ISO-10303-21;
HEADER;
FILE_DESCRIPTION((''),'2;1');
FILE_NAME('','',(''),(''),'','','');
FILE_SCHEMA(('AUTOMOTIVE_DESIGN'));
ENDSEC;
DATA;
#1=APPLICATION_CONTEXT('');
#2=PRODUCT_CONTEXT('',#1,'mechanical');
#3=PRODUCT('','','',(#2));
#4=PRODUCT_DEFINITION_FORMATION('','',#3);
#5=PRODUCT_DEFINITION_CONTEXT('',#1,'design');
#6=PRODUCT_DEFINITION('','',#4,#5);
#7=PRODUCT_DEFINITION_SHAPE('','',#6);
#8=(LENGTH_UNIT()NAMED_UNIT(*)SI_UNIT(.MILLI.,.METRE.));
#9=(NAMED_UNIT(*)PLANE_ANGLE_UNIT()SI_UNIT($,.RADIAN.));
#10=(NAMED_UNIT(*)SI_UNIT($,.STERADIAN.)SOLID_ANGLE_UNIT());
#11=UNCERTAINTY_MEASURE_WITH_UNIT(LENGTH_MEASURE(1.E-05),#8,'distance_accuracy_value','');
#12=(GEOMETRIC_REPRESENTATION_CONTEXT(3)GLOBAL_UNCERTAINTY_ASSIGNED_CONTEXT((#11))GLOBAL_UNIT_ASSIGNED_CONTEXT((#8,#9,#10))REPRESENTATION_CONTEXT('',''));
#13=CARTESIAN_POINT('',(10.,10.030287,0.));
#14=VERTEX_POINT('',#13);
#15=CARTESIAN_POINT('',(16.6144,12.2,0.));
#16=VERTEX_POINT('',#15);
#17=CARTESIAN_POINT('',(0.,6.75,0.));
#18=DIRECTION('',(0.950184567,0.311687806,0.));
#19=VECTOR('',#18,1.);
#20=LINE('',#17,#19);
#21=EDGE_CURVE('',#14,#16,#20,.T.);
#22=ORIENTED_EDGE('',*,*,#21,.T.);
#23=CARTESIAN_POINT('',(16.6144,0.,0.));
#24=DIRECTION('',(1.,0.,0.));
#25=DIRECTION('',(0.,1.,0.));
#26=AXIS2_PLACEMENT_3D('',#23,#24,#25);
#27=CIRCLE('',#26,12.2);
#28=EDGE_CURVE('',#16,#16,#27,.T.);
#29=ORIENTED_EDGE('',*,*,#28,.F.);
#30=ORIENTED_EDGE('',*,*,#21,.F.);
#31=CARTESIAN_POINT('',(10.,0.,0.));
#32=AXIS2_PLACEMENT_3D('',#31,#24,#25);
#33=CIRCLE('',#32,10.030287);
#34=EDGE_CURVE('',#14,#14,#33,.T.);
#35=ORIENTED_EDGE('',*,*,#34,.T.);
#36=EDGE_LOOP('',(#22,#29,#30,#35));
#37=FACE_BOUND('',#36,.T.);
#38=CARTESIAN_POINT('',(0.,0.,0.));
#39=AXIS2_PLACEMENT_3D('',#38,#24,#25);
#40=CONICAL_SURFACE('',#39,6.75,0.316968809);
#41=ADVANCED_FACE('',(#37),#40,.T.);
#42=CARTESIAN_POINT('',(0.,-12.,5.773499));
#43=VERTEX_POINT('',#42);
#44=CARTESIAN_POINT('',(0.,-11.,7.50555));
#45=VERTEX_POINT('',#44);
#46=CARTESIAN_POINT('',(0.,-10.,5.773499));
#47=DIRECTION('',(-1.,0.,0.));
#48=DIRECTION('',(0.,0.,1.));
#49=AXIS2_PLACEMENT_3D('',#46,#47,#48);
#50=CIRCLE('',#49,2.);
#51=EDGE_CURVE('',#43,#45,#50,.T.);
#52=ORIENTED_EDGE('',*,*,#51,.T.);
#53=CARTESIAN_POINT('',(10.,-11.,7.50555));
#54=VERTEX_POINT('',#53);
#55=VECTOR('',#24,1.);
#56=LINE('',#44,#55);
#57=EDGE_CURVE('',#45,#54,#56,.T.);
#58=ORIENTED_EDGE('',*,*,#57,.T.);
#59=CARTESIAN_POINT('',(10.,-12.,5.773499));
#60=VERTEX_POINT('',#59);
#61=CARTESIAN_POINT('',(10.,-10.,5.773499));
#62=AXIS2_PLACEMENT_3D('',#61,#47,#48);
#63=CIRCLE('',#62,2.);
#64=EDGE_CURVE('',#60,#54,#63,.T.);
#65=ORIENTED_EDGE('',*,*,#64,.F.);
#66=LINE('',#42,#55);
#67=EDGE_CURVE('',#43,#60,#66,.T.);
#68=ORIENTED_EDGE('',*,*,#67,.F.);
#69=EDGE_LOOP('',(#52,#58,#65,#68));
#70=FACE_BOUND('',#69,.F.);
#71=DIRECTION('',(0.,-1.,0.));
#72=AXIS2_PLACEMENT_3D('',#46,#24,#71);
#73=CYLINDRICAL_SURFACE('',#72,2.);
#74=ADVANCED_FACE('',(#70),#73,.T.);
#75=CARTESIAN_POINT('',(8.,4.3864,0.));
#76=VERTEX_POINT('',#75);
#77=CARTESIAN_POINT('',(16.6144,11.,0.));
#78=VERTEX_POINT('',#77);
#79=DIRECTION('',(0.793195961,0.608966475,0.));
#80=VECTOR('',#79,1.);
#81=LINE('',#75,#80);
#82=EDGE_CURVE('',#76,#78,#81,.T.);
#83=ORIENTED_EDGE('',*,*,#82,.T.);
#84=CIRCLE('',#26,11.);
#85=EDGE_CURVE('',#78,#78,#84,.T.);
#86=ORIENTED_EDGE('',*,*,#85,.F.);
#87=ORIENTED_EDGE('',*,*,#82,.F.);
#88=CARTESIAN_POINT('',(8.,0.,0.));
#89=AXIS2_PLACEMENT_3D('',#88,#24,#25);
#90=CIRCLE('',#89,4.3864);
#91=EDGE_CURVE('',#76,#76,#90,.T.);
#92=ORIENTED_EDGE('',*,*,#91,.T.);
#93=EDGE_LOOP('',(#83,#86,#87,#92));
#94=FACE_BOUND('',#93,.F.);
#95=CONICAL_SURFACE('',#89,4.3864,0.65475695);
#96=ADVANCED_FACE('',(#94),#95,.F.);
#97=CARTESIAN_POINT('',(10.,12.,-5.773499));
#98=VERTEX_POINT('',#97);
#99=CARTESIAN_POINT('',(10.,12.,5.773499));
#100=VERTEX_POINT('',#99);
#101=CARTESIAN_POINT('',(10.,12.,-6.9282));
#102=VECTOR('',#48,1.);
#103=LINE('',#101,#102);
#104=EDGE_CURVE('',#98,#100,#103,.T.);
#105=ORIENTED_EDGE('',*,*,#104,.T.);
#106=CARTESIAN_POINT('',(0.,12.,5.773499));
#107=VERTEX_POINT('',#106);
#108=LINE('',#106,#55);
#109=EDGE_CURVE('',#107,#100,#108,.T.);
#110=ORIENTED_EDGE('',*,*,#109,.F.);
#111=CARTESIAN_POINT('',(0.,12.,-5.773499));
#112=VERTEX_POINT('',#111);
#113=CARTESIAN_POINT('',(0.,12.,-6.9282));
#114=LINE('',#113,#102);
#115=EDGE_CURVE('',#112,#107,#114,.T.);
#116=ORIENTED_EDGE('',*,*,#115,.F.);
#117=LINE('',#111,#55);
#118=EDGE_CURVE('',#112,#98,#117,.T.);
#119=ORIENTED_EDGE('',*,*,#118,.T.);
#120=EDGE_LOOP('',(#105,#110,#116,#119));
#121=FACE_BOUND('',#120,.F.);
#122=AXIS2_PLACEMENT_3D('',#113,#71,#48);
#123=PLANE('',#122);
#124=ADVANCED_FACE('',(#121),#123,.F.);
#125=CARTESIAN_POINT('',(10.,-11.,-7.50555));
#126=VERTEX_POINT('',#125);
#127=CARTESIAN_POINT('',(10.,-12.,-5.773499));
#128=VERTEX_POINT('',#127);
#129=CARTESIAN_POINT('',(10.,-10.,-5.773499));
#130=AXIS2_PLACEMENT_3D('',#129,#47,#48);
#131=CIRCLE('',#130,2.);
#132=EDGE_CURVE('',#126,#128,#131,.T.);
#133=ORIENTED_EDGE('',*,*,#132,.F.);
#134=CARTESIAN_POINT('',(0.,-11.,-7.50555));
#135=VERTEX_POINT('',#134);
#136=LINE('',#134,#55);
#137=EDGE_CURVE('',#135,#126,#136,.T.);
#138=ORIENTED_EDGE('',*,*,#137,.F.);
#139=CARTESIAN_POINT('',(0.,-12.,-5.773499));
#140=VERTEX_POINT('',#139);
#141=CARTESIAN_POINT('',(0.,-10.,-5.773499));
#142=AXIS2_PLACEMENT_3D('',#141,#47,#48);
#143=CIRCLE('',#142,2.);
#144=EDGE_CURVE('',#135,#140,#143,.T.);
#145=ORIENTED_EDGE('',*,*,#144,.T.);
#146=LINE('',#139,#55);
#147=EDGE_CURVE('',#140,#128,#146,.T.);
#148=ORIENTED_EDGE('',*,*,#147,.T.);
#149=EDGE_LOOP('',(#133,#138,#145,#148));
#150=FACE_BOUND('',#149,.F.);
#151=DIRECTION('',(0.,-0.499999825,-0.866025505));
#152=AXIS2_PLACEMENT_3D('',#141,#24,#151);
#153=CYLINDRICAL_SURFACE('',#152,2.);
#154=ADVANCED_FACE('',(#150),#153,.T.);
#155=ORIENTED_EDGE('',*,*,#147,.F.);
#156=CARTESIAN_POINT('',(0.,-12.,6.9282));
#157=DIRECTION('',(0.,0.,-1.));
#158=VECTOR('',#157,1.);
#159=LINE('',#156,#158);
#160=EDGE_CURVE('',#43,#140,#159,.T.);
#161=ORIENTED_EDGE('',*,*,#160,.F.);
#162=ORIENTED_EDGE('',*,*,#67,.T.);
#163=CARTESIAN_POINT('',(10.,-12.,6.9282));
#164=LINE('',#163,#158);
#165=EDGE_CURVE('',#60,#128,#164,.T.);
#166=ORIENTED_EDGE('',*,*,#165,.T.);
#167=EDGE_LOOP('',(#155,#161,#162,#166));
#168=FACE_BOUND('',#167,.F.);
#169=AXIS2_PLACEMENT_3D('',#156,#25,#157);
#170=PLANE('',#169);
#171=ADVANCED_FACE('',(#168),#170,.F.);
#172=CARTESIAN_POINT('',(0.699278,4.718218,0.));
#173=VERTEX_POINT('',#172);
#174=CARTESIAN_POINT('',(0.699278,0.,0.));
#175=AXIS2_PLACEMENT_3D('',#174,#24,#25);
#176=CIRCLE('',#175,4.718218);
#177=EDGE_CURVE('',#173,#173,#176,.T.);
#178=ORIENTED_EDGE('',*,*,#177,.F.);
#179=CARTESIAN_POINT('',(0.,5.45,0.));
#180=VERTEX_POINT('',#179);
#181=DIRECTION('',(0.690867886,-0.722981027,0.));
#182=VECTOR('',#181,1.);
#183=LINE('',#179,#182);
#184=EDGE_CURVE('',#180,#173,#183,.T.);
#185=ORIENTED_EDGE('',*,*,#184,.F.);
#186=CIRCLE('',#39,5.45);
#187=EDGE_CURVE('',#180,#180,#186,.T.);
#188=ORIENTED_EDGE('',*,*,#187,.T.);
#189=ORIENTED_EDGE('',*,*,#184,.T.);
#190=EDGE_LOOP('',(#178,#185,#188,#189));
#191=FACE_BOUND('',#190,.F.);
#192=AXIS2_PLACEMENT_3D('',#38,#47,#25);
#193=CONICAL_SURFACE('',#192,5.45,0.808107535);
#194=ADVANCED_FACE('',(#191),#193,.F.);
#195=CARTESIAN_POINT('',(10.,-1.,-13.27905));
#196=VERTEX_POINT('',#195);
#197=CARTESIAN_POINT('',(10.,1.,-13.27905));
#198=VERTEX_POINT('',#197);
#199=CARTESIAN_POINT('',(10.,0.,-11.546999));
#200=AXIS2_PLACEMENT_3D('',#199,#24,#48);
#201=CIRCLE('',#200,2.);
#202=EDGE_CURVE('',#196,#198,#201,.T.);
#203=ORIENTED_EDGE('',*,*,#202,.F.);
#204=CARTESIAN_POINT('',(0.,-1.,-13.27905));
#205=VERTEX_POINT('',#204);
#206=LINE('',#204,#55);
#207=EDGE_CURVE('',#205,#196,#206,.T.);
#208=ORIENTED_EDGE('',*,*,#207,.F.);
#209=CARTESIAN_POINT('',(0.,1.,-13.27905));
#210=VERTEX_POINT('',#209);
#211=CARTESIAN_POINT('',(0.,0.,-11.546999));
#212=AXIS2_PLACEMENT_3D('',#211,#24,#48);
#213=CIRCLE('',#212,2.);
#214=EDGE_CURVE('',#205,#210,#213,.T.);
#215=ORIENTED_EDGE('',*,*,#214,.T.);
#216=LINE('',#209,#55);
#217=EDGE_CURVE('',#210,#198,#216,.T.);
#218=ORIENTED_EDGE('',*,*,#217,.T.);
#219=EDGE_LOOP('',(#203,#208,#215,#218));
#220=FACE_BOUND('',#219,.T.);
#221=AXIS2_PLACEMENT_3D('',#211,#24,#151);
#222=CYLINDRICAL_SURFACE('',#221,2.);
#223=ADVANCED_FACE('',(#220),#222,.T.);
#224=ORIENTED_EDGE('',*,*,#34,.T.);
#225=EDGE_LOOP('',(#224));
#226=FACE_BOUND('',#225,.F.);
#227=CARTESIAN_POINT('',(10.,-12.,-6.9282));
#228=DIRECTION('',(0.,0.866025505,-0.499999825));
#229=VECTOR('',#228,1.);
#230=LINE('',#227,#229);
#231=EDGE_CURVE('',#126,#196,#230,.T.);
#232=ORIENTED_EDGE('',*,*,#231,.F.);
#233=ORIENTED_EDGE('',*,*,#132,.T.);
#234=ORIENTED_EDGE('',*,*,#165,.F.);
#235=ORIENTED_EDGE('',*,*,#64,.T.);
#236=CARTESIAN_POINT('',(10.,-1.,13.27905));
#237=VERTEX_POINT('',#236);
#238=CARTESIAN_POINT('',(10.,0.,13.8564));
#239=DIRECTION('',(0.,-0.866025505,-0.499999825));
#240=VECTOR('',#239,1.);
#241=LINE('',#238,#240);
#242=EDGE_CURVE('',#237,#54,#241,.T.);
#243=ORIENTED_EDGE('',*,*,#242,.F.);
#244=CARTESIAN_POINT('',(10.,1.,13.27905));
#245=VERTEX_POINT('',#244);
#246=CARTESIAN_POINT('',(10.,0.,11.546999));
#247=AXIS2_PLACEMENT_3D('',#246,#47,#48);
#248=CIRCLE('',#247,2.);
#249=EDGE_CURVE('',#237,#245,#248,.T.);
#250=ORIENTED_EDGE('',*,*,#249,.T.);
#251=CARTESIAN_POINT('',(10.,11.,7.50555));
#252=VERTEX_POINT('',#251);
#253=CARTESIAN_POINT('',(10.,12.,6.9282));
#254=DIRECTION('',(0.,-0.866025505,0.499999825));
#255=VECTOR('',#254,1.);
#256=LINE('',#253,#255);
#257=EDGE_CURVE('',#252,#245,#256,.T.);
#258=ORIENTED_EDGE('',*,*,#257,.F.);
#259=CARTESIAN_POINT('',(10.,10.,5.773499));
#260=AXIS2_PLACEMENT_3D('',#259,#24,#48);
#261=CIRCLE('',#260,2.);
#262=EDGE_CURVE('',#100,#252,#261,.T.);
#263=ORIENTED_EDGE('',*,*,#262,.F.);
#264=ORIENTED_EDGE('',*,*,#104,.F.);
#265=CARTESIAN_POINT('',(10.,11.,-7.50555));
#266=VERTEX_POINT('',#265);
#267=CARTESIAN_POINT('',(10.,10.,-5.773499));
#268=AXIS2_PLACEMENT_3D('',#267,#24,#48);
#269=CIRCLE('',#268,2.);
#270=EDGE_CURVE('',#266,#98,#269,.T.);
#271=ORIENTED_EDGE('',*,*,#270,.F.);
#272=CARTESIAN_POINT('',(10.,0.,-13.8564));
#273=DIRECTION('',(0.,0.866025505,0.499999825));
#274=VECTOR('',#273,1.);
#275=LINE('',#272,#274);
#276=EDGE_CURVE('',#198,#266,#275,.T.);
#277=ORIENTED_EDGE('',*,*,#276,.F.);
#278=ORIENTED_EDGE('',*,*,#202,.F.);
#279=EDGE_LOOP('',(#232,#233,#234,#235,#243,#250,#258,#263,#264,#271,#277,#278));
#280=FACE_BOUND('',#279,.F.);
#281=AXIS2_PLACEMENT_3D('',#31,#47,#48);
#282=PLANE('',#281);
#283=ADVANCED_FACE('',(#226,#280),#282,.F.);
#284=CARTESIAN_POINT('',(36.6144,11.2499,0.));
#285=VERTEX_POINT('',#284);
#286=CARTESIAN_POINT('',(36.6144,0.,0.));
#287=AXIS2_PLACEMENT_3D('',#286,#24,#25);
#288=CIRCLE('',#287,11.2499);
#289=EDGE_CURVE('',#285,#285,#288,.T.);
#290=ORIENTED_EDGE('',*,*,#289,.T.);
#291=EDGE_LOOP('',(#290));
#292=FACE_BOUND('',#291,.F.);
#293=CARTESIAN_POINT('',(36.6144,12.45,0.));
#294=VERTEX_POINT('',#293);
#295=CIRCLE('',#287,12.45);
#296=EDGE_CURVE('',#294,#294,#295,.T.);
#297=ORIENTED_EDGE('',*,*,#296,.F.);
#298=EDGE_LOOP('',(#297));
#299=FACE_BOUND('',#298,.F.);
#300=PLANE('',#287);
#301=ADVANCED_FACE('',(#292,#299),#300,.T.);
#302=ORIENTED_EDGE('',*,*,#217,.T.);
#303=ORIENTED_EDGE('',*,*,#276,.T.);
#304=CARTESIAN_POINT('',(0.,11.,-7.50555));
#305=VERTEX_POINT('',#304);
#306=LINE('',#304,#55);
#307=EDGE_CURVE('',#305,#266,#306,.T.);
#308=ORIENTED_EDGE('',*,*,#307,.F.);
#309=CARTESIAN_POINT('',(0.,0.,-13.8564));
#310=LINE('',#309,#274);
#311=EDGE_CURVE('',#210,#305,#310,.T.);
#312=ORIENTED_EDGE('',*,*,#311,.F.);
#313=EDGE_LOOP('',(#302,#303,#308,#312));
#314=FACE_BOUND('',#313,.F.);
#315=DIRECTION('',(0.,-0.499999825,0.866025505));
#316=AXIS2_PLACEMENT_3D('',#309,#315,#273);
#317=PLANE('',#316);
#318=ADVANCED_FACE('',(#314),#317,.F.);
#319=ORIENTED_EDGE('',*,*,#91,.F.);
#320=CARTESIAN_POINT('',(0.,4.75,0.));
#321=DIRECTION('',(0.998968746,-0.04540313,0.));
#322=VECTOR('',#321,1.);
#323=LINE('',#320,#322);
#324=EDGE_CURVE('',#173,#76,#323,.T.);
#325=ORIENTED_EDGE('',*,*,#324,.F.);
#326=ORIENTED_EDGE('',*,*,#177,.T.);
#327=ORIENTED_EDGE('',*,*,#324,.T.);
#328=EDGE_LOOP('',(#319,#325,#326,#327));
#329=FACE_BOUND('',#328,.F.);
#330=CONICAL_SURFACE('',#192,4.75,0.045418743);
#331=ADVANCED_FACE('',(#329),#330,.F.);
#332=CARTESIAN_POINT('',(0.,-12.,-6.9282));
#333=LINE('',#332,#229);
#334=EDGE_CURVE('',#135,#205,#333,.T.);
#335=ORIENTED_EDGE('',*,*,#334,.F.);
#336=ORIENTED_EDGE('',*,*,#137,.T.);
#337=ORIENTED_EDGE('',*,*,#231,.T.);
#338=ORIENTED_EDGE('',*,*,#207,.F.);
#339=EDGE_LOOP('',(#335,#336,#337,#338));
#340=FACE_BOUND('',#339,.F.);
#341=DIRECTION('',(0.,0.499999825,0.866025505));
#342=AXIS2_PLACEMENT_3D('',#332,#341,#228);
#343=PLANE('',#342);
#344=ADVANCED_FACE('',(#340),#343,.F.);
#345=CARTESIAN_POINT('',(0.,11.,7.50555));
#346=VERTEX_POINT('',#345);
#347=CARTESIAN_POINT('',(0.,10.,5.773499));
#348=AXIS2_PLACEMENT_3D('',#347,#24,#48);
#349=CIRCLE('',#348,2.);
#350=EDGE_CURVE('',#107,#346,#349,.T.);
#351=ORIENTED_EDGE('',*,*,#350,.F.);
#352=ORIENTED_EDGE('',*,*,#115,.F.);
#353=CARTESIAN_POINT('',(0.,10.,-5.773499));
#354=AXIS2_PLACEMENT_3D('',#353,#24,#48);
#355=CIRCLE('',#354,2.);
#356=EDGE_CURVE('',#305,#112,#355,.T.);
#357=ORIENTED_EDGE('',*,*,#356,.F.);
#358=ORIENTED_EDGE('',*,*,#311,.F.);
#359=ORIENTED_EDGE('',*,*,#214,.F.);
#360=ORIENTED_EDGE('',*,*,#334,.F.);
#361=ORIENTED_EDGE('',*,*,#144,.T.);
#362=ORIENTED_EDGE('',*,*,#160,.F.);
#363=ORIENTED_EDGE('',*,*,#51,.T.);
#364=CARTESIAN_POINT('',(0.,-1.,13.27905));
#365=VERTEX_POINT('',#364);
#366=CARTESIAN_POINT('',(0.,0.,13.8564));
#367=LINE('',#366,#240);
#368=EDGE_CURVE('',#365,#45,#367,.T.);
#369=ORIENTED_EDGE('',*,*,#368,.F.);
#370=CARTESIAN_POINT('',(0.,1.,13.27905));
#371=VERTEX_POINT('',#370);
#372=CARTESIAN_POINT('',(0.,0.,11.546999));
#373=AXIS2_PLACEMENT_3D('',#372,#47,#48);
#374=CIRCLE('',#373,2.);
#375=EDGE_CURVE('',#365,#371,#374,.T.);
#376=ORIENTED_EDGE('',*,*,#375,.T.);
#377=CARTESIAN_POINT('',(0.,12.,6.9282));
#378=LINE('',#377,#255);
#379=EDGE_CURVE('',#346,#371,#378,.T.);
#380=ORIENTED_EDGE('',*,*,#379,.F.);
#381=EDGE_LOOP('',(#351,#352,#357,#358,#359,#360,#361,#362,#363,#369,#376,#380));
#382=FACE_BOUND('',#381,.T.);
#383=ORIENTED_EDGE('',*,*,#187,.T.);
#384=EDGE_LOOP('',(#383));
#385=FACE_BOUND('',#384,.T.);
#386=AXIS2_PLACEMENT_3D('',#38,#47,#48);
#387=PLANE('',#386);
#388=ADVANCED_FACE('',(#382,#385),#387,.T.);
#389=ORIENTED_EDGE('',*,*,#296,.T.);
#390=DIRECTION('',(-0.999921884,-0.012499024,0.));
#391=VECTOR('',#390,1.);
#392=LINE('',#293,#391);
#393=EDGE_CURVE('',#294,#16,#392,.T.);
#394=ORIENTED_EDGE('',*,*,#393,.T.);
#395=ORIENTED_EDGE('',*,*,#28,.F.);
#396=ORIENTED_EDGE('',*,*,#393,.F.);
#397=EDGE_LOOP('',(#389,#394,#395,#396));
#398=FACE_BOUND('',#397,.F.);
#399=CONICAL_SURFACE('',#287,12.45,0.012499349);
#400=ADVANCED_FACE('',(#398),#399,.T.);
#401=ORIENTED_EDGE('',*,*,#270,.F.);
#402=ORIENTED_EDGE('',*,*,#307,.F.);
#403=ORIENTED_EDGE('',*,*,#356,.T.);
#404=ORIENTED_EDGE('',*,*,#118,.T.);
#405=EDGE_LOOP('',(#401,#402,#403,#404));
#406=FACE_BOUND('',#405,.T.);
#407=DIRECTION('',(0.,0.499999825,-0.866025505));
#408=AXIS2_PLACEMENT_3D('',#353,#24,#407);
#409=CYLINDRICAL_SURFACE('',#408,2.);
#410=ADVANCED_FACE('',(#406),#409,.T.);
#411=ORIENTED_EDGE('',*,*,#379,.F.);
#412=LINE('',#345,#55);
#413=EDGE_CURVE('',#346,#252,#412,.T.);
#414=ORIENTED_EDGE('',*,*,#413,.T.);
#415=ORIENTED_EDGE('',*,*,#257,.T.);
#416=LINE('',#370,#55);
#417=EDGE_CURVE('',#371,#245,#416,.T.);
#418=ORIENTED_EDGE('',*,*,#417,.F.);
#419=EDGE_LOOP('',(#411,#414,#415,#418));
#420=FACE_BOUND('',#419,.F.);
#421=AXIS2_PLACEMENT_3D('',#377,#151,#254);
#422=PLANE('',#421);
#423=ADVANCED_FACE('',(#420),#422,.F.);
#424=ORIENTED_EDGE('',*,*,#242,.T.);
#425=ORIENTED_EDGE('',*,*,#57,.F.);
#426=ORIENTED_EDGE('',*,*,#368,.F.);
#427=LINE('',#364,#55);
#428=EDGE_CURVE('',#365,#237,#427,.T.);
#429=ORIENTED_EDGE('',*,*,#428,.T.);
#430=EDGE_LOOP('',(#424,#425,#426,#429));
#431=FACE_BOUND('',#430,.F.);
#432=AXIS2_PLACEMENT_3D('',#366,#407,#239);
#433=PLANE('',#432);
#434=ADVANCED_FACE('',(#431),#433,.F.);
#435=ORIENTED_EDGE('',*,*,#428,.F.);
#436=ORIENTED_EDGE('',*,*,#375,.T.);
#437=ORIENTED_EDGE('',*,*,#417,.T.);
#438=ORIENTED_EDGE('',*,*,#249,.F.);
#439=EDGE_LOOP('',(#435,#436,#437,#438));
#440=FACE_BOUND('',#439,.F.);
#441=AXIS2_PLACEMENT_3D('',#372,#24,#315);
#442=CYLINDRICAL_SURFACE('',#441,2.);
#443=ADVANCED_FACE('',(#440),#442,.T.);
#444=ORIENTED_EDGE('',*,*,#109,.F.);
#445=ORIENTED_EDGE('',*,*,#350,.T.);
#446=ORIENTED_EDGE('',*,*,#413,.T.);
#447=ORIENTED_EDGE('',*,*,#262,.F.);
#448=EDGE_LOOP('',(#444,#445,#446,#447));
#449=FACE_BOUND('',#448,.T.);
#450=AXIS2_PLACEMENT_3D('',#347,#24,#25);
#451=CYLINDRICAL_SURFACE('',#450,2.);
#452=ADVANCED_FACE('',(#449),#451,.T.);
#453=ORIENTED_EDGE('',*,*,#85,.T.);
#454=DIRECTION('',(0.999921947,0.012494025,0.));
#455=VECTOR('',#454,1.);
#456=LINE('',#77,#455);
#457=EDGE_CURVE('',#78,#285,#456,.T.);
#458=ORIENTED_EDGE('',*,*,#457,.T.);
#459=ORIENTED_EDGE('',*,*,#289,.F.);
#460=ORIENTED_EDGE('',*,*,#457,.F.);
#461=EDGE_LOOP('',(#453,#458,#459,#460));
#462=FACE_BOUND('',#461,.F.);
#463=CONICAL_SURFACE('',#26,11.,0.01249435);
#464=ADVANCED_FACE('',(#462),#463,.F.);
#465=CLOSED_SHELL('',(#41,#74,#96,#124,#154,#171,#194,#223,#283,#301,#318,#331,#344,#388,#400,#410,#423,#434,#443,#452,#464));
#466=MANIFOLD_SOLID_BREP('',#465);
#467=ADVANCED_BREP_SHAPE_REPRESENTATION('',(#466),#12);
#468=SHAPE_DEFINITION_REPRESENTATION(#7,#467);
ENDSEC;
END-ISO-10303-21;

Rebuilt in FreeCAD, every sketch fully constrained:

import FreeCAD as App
import Part
import Sketcher
from FreeCAD import Vector
Q = App.Units.Quantity


def edges_at(feature, points):
    """Names of the edges that pass closest to the given points."""
    edges = feature.Shape.Edges
    near = lambda p: min(range(len(edges)), key=lambda i: edges[i].distToShape(Part.Vertex(*p))[0])
    return sorted({f"Edge{near(p) + 1}" for p in points})


def add_polygon(sketch, points):
    """Adds a closed chain of lines whose ends are joined by coincident constraints."""
    first, n = sketch.GeometryCount, len(points)
    for a, b in zip(points, points[1:] + points[:1]):
        sketch.addGeometry(Part.LineSegment(App.Vector(*a, 0), App.Vector(*b, 0)), False)
    for i in range(n):
        sketch.addConstraint(Sketcher.Constraint("Coincident", first + i, 2, first + (i + 1) % n, 1))

doc = App.newDocument("Part")
body = doc.addObject("PartDesign::Body", "Body")

# Sketch on XY plane
sketch1 = body.newObject("Sketcher::SketchObject", "Sketch")
sketch1.AttachmentSupport = (doc.getObject("XY_Plane"), [""])
sketch1.MapMode = "FlatFace"
add_polygon(sketch1, [(0, 6.8), (0, 4.8), (8, 4.4), (16.6, 11), (36.6, 11.2), (36.6, 12.4), (16.6, 12.2)])  # lines 0-6
sketch1.addConstraint([
    Sketcher.Constraint("Vertical", 0),
    Sketcher.Constraint("Vertical", 4),
    Sketcher.Constraint("PointOnObject", 0, 2, -2),
    Sketcher.Constraint("Parallel", 3, 5),
    Sketcher.Constraint("Vertical", 2, 2, 5, 2),
    Sketcher.Constraint("DistanceY", 0, 2, 0, 1, Q("2 mm")),
    Sketcher.Constraint("DistanceY", 4, 1, 4, 2, Q("1.2 mm")),
    Sketcher.Constraint("DistanceX", -1, 1, 1, 2, Q("8 mm")),
    Sketcher.Constraint("DistanceX", 2, 2, 3, 2, Q("20 mm")),
    Sketcher.Constraint("DistanceY", -1, 1, 5, 2, Q("12.2 mm")),
    Sketcher.Constraint("DistanceY", -1, 1, 0, 2, Q("4.75 mm")),
    Sketcher.Constraint("DistanceY", -1, 1, 4, 2, Q("12.45 mm")),
    Sketcher.Constraint("Angle", 6, Q("-161.839 deg")),
    Sketcher.Constraint("Distance", 1, Q("8.0083 mm")),
])
revolution = body.newObject("PartDesign::Revolution", "Revolution")
revolution.Profile = sketch1
revolution.ReferenceAxis = (sketch1, ["H_Axis"])
revolution.Angle = 360
doc.recompute()

chamfer = body.newObject("PartDesign::Chamfer", "Chamfer")
chamfer.Base = (revolution, edges_at(revolution, [(0, -4.75, 0)]))
chamfer.Size = 0.7

# Sketch on YZ plane
sketch2 = body.newObject("Sketcher::SketchObject", "Sketch001")
sketch2.AttachmentSupport = (doc.getObject("YZ_Plane"), [""])
sketch2.MapMode = "FlatFace"
add_polygon(sketch2, [(0, -14), (-12, -7), (-12, 7), (0, 14), (12, 7), (12, -7)])  # lines 0-5
sketch2.addGeometry(Part.Circle(Vector(0, 0, 0), Vector(0, 0, 1), 7), False)  # 6
sketch2.addConstraint([
    Sketcher.Constraint("Vertical", 1),
    Sketcher.Constraint("Vertical", 4),
    Sketcher.Constraint("Coincident", 6, 3, -1, 1),
    Sketcher.Constraint("Symmetric", 0, 2, 3, 2, -1, 1),
    Sketcher.Constraint("Symmetric", 2, 2, 5, 2, -1, 1),
    Sketcher.Constraint("PointOnObject", 2, 2, -2),
    Sketcher.Constraint("Parallel", 2, 5),
    Sketcher.Constraint("Horizontal", 1, 2, 3, 2),
    Sketcher.Constraint("DistanceX", 1, 2, 3, 2, Q("24 mm")),
    Sketcher.Constraint("Diameter", 6, Q("13.5 mm")),
    Sketcher.Constraint("Angle", 0, Q("150 deg")),
    Sketcher.Constraint("DistanceY", 1, 1, 1, 2, Q("13.8564 mm")),
])
pad1 = body.newObject("PartDesign::Pad", "Pad")
pad1.Profile = sketch2
pad1.Length = 10
doc.recompute()

fillet = body.newObject("PartDesign::Fillet", "Fillet")
fillet.Base = (pad1, edges_at(pad1, [
    (5, 12, 6.928),
    (5, 12, -6.928),
    (5, 0, -13.856),
    (5, -12, -6.928),
    (5, -12, 6.928),
    (5, 0, 13.856),
]))
fillet.Radius = 2

doc.recompute()
